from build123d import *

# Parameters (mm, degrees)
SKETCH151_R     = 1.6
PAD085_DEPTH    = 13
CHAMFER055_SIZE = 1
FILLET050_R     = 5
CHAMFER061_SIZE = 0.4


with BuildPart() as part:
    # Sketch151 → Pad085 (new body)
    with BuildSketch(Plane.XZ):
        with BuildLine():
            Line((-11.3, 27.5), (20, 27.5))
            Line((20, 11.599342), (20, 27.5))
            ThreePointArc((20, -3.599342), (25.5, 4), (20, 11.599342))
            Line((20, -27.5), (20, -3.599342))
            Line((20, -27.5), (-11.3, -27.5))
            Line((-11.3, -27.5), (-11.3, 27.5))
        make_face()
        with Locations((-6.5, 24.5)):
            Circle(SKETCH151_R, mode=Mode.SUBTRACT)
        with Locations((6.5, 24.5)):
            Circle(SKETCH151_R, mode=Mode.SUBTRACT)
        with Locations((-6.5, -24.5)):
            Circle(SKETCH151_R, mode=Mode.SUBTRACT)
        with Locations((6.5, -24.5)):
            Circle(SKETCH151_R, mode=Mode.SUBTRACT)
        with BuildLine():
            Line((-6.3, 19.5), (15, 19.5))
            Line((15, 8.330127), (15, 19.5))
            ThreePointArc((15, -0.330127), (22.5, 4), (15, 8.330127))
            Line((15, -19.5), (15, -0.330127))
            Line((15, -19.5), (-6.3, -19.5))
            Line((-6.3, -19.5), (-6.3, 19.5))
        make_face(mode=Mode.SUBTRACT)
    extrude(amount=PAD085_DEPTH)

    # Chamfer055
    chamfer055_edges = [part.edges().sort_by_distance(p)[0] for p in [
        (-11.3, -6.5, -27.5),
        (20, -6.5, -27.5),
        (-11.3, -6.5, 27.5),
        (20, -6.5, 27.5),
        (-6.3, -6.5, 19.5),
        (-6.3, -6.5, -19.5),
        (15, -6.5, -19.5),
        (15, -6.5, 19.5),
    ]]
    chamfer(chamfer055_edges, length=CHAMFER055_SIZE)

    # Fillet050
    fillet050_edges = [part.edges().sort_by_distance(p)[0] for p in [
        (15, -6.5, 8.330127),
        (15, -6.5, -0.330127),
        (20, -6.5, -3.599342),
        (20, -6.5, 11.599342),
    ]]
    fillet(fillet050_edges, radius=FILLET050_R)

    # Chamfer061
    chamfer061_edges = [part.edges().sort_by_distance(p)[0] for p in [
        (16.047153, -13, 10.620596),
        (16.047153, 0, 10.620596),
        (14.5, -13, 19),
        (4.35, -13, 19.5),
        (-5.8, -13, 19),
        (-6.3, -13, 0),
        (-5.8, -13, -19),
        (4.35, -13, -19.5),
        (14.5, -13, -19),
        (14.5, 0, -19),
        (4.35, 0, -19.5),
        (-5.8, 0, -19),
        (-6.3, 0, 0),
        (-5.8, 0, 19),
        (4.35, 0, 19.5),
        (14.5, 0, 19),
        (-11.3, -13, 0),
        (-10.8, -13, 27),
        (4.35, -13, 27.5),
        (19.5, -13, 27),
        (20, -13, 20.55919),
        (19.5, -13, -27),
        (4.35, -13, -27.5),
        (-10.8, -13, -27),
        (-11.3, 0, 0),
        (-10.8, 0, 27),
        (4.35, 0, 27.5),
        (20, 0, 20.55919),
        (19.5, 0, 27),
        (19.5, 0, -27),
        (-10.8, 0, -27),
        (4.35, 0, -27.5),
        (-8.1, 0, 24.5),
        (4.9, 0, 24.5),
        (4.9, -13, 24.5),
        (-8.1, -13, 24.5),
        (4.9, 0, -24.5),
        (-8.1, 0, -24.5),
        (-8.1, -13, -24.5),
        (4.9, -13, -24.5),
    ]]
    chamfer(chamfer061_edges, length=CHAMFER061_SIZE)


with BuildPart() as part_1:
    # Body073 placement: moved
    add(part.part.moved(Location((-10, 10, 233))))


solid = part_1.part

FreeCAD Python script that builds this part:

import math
import FreeCAD as App
import Part
import Sketcher
from FreeCAD import Vector
Q = App.Units.Quantity


def edges_at(feature, points):
    """Names of the edges that pass closest to the given points."""
    edges = feature.Shape.Edges
    near = lambda p: min(range(len(edges)), key=lambda i: edges[i].distToShape(Part.Vertex(*p))[0])
    return sorted({f"Edge{near(p) + 1}" for p in points})

doc = App.newDocument("Part")
body = doc.addObject("PartDesign::Body", "Body")

# Sketch on XZ plane
sketch1 = body.newObject("Sketcher::SketchObject", "Sketch")
sketch1.AttachmentSupport = (doc.getObject("XZ_Plane"), [""])
sketch1.MapMode = "FlatFace"
sketch1.addGeometry(Part.LineSegment(Vector(20, 27.5, 0), Vector(-11.3, 27.5, 0)), False)
sketch1.addGeometry(Part.LineSegment(Vector(-11.3, 27.5, 0), Vector(-11.3, -27.5, 0)), False)
sketch1.addGeometry(Part.LineSegment(Vector(-11.3, -27.5, 0), Vector(20, -27.5, 0)), False)
sketch1.addGeometry(Part.LineSegment(Vector(20, -27.5, 0), Vector(20, -3.6, 0)), False)
sketch1.addGeometry(Part.ArcOfCircle(Part.Circle(Vector(17.5, 4, 0), Vector(0, 0, 1), 8), math.radians(-72), math.radians(72)), False)
sketch1.addGeometry(Part.LineSegment(Vector(20, 11.6, 0), Vector(20, 27.5, 0)), False)
sketch1.addGeometry(Part.Circle(Vector(6.5, -24.5, 0), Vector(0, 0, 1), 1.6), False)
sketch1.addGeometry(Part.Circle(Vector(-6.5, -24.5, 0), Vector(0, 0, 1), 1.6), False)
sketch1.addGeometry(Part.LineSegment(Vector(-6.3, 19.5, 0), Vector(15, 19.5, 0)), False)
sketch1.addGeometry(Part.LineSegment(Vector(15, 19.5, 0), Vector(15, 8.3, 0)), False)
sketch1.addGeometry(Part.ArcOfCircle(Part.Circle(Vector(17.5, 4, 0), Vector(0, 0, 1), 5), math.radians(-120), math.radians(120)), False)
sketch1.addGeometry(Part.LineSegment(Vector(15, -0.3, 0), Vector(15, -19.5, 0)), False)
sketch1.addGeometry(Part.LineSegment(Vector(15, -19.5, 0), Vector(-6.3, -19.5, 0)), False)
sketch1.addGeometry(Part.LineSegment(Vector(-6.3, -19.5, 0), Vector(-6.3, 19.5, 0)), False)
sketch1.addGeometry(Part.Circle(Vector(6.5, 24.5, 0), Vector(0, 0, 1), 1.6), False)
sketch1.addGeometry(Part.Circle(Vector(-6.5, 24.5, 0), Vector(0, 0, 1), 1.6), False)
sketch1.addConstraint(Sketcher.Constraint("Coincident", 0, 2, 1, 1))
sketch1.addConstraint(Sketcher.Constraint("Coincident", 1, 2, 2, 1))
sketch1.addConstraint(Sketcher.Constraint("Coincident", 2, 2, 3, 1))
sketch1.addConstraint(Sketcher.Constraint("Coincident", 3, 2, 4, 1))
sketch1.addConstraint(Sketcher.Constraint("Coincident", 4, 2, 5, 1))
sketch1.addConstraint(Sketcher.Constraint("Coincident", 5, 2, 0, 1))
sketch1.addConstraint(Sketcher.Constraint("Coincident", 8, 2, 9, 1))
sketch1.addConstraint(Sketcher.Constraint("Coincident", 9, 2, 10, 2))
sketch1.addConstraint(Sketcher.Constraint("Coincident", 10, 1, 11, 1))
sketch1.addConstraint(Sketcher.Constraint("Coincident", 11, 2, 12, 1))
sketch1.addConstraint(Sketcher.Constraint("Coincident", 12, 2, 13, 1))
sketch1.addConstraint(Sketcher.Constraint("Coincident", 13, 2, 8, 1))
sketch1.addConstraint(Sketcher.Constraint("Horizontal", 0))
sketch1.addConstraint(Sketcher.Constraint("Vertical", 1))
sketch1.addConstraint(Sketcher.Constraint("Horizontal", 2))
sketch1.addConstraint(Sketcher.Constraint("Vertical", 3))
sketch1.addConstraint(Sketcher.Constraint("Vertical", 5))
sketch1.addConstraint(Sketcher.Constraint("Horizontal", 8))
sketch1.addConstraint(Sketcher.Constraint("Vertical", 9))
sketch1.addConstraint(Sketcher.Constraint("Vertical", 11))
sketch1.addConstraint(Sketcher.Constraint("Horizontal", 12))
sketch1.addConstraint(Sketcher.Constraint("Vertical", 13))
sketch1.addConstraint(Sketcher.Constraint("Coincident", 10, 3, 4, 3))
sketch1.addConstraint(Sketcher.Constraint("Equal", 6, 7))
sketch1.addConstraint(Sketcher.Constraint("Equal", 7, 14))
sketch1.addConstraint(Sketcher.Constraint("Equal", 14, 15))
sketch1.addConstraint(Sketcher.Constraint("Symmetric", 7, 3, 14, 3, -1, 1))
sketch1.addConstraint(Sketcher.Constraint("Symmetric", 6, 3, 15, 3, -1, 1))
sketch1.addConstraint(Sketcher.Constraint("Symmetric", 6, 3, 7, 3, -2))
sketch1.addConstraint(Sketcher.Constraint("Symmetric", 2, 2, 5, 2, -1))
sketch1.addConstraint(Sketcher.Constraint("Symmetric", 8, 2, 11, 2, -1))
sketch1.addConstraint(Sketcher.Constraint("Radius", 4, Q("8 mm")))
sketch1.addConstraint(Sketcher.Constraint("Radius", 10, Q("5 mm")))
sketch1.addConstraint(Sketcher.Constraint("Diameter", 6, Q("3.2 mm")))
sketch1.addConstraint(Sketcher.Constraint("DistanceY", 1, 2, 1, 1, Q("55 mm")))
sketch1.addConstraint(Sketcher.Constraint("DistanceY", 13, 1, 13, 2, Q("39 mm")))
sketch1.addConstraint(Sketcher.Constraint("DistanceX", 0, 2, 0, 1, Q("31.3 mm")))
sketch1.addConstraint(Sketcher.Constraint("DistanceX", 8, 1, 8, 2, Q("21.3 mm")))
sketch1.addConstraint(Sketcher.Constraint("DistanceY", -1, 1, 4, 3, Q("4 mm")))
sketch1.addConstraint(Sketcher.Constraint("DistanceX", -1, 1, 2, 2, Q("20 mm")))
sketch1.addConstraint(Sketcher.Constraint("DistanceX", -1, 1, 8, 2, Q("15 mm")))
sketch1.addConstraint(Sketcher.Constraint("DistanceX", 6, 3, 4, 3, Q("11 mm")))
sketch1.addConstraint(Sketcher.Constraint("DistanceX", 7, 3, 6, 3, Q("13 mm")))
sketch1.addConstraint(Sketcher.Constraint("DistanceY", 6, 3, 14, 3, Q("49 mm")))
pad1 = body.newObject("PartDesign::Pad", "Pad")
pad1.Profile = sketch1
pad1.Length = 13
doc.recompute()

chamfer = body.newObject("PartDesign::Chamfer", "Chamfer")
chamfer.Base = (pad1, edges_at(pad1, [
    (-11.3, -6.5, -27.5),
    (20, -6.5, -27.5),
    (-11.3, -6.5, 27.5),
    (20, -6.5, 27.5),
    (-6.3, -6.5, 19.5),
    (-6.3, -6.5, -19.5),
    (15, -6.5, -19.5),
    (15, -6.5, 19.5),
]))
chamfer.Size = 1
doc.recompute()

fillet = body.newObject("PartDesign::Fillet", "Fillet")
fillet.Base = (chamfer, edges_at(chamfer, [
    (15, -6.5, 8.33),
    (15, -6.5, -0.33),
    (20, -6.5, -3.599),
    (20, -6.5, 11.599),
]))
fillet.Radius = 5
doc.recompute()

chamfer2 = body.newObject("PartDesign::Chamfer", "Chamfer001")
chamfer2.Base = (fillet, edges_at(fillet, [
    (16.047, -13, 10.621),
    (16.047, 0, 10.621),
    (14.5, -13, 19),
    (4.35, -13, 19.5),
    (-5.8, -13, 19),
    (-6.3, -13, 0),
    (-5.8, -13, -19),
    (4.35, -13, -19.5),
    (14.5, -13, -19),
    (14.5, 0, -19),
    (4.35, 0, -19.5),
    (-5.8, 0, -19),
    (-6.3, 0, 0),
    (-5.8, 0, 19),
    (4.35, 0, 19.5),
    (14.5, 0, 19),
    (-11.3, -13, 0),
    (-10.8, -13, 27),
    (4.35, -13, 27.5),
    (19.5, -13, 27),
    (20, -13, 20.559),
    (19.5, -13, -27),
    (4.35, -13, -27.5),
    (-10.8, -13, -27),
    (-11.3, 0, 0),
    (-10.8, 0, 27),
    (4.35, 0, 27.5),
    (20, 0, 20.559),
    (19.5, 0, 27),
    (19.5, 0, -27),
    (-10.8, 0, -27),
    (4.35, 0, -27.5),
    (-8.1, 0, 24.5),
    (4.9, 0, 24.5),
    (4.9, -13, 24.5),
    (-8.1, -13, 24.5),
    (4.9, 0, -24.5),
    (-8.1, 0, -24.5),
    (-8.1, -13, -24.5),
    (4.9, -13, -24.5),
]))
chamfer2.Size = 0.4
body2 = doc.addObject("PartDesign::Body", "Body001")
doc.recompute()

body.Placement = App.Placement(Vector(-10, 10, 233), App.Rotation(Vector(0, 0, 1), 0))
boolean = body2.newObject("PartDesign::Boolean", "Boolean")
boolean.Type = "Fuse"
boolean.addObjects([body])

doc.recompute()
